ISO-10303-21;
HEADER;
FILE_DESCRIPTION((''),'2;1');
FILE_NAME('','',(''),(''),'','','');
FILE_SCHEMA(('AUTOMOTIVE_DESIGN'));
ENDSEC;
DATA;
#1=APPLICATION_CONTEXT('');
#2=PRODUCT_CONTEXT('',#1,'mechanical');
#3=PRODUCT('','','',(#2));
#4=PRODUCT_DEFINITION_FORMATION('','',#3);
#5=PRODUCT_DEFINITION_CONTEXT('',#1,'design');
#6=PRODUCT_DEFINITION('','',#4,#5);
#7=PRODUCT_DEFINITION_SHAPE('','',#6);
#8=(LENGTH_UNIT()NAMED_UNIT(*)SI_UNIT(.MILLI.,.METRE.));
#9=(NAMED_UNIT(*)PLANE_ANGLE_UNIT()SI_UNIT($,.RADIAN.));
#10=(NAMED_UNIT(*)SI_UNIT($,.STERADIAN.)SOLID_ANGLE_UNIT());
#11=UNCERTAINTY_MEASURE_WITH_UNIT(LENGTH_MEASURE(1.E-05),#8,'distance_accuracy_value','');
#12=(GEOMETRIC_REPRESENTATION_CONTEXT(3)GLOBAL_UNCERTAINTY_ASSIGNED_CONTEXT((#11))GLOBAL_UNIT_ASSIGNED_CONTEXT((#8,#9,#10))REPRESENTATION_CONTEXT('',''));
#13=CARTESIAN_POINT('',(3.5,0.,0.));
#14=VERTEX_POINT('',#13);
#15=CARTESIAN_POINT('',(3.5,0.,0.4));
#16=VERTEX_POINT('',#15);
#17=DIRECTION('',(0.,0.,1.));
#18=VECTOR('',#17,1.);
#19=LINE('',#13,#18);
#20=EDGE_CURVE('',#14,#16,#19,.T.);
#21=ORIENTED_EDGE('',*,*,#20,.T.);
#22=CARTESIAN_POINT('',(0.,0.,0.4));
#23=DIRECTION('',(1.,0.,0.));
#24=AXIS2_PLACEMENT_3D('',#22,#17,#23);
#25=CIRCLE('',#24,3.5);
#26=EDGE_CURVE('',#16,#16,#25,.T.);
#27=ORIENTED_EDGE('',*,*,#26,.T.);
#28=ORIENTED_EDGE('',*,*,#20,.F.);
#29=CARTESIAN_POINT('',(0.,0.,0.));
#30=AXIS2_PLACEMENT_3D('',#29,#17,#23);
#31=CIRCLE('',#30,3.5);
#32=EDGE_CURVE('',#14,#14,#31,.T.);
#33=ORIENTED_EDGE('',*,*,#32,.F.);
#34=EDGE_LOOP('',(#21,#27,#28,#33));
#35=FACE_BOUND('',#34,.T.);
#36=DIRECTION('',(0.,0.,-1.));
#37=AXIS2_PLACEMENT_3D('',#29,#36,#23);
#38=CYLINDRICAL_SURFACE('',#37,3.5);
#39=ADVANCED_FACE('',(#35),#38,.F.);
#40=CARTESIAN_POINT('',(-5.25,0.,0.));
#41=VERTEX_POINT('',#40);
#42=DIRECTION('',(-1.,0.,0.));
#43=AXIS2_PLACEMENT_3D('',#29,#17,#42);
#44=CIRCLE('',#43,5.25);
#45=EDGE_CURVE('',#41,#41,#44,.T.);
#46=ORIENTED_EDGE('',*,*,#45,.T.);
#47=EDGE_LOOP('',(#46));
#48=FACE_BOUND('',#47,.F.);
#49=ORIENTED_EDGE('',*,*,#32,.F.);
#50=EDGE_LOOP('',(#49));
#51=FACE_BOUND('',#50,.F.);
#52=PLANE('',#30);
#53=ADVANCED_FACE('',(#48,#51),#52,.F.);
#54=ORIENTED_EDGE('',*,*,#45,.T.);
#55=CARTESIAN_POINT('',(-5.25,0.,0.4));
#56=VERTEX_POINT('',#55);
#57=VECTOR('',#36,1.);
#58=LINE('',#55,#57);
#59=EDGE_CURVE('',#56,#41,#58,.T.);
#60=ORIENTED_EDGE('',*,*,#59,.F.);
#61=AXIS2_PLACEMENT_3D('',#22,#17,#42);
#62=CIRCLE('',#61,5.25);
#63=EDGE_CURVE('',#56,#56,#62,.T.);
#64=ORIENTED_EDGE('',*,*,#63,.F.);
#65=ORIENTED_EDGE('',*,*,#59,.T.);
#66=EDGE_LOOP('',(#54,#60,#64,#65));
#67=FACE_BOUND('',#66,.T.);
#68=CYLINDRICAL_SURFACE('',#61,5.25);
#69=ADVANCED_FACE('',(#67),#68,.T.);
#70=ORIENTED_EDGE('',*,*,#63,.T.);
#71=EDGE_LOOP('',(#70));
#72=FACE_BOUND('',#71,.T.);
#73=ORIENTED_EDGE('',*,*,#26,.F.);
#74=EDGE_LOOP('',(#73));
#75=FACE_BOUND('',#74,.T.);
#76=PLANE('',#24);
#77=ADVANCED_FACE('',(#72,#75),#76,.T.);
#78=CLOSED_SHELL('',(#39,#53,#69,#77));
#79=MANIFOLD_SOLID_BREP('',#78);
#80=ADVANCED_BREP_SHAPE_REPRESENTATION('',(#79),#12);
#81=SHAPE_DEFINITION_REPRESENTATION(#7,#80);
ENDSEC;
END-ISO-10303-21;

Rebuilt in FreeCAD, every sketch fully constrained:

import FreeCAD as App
import Part
import Sketcher

V = App.Vector

doc = App.newDocument("Part")
body = doc.addObject("PartDesign::Body", "Body")

# Sketch on XY plane
sketch1 = body.newObject("Sketcher::SketchObject", "Sketch")
sketch1.AttachmentSupport = (doc.getObject("XY_Plane"), [""])
sketch1.MapMode = "FlatFace"
sketch1.addGeometry([
    Part.Circle(V(0, 0, 0), V(0, 0, 1), 6),
    Part.Circle(V(0, 0, 0), V(0, 0, 1), 3.5),
], False)
sketch1.addConstraint([
    Sketcher.Constraint("Coincident", 0, 3, -1, 1),
    Sketcher.Constraint("Coincident", 1, 3, -1, 1),
    Sketcher.Constraint("Diameter", 0, 12.0),
    Sketcher.Constraint("Diameter", 1, 7.0),
])
pad1 = body.newObject("PartDesign::Pad", "Pad")
pad1.Profile = sketch1
pad1.Length = 0.4

# Sketch on XY plane
sketch2 = body.newObject("Sketcher::SketchObject", "Sketch001")
sketch2.AttachmentSupport = (doc.getObject("XY_Plane"), [""])
sketch2.MapMode = "FlatFace"
sketch2.AttachmentOffset = App.Placement(V(0, 0, 0.4), App.Rotation())
sketch2.addGeometry([
    Part.Circle(V(0, 0, 0), V(0, 0, 1), 6),
    Part.Circle(V(0, 0, 0), V(0, 0, 1), 5),
], False)
sketch2.addConstraint([
    Sketcher.Constraint("Coincident", 0, 3, -1, 1),
    Sketcher.Constraint("Coincident", 1, 3, -1, 1),
    Sketcher.Constraint("Diameter", 1, 10.5),
    Sketcher.Constraint("Diameter", 0, 12.0),
])
pocket1 = body.newObject("PartDesign::Pocket", "Pocket")
pocket1.Profile = sketch2
pocket1.Length = 6

doc.recompute()
